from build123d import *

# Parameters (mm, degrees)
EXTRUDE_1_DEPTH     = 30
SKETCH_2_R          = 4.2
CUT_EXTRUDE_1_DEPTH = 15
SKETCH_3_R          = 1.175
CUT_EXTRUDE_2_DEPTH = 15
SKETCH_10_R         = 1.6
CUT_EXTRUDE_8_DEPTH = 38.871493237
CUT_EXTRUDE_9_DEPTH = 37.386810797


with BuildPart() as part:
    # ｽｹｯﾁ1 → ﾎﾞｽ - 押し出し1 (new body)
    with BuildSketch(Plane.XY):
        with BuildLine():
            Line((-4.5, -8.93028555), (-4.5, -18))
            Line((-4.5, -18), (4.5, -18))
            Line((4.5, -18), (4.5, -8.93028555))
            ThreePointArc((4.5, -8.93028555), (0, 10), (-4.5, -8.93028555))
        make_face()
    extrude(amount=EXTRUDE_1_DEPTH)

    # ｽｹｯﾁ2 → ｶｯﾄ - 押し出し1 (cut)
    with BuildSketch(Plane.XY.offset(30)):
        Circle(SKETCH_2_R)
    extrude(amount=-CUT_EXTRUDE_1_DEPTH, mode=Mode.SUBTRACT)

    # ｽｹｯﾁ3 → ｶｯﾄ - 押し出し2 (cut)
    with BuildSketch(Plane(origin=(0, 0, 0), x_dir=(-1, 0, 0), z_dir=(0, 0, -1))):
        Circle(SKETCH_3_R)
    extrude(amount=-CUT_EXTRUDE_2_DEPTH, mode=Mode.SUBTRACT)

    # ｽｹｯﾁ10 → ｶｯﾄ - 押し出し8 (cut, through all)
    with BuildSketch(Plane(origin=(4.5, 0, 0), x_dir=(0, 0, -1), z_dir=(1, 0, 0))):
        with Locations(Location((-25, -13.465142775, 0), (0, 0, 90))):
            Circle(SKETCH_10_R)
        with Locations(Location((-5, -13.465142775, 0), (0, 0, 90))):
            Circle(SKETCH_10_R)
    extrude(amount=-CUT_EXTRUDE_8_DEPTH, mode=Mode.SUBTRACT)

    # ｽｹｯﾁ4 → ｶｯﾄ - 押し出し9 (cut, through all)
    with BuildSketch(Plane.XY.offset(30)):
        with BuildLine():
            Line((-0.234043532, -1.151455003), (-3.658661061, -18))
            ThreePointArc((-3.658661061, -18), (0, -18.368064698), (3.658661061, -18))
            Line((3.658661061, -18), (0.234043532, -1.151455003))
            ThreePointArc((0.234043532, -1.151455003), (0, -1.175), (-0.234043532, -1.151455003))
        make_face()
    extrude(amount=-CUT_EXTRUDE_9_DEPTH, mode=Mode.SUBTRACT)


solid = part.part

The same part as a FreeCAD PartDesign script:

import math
import FreeCAD as App
import Part
import Sketcher
Q = App.Units.Quantity

doc = App.newDocument("Part")
body = doc.addObject("PartDesign::Body", "Body")

# Sketch on XY plane
sketch1 = body.newObject("Sketcher::SketchObject", "Sketch")
sketch1.AttachmentSupport = (doc.getObject("XY_Plane"), [""])
sketch1.MapMode = "FlatFace"
sketch1.addGeometry([
    Part.LineSegment(App.Vector(-4.5, -8.930286, 0), App.Vector(-4.5, -18, 0)),
    Part.LineSegment(App.Vector(-4.5, -18, 0), App.Vector(4.5, -18, 0)),
    Part.LineSegment(App.Vector(4.5, -18, 0), App.Vector(4.5, -8.930286, 0)),
    Part.ArcOfCircle(Part.Circle(App.Vector(0, 0, 0), App.Vector(0, 0, 1), 10), math.radians(-63.256316), math.radians(243.256316)),
], False)
sketch1.addConstraint([
    Sketcher.Constraint("Coincident", 0, 2, 1, 1),
    Sketcher.Constraint("Coincident", 1, 2, 2, 1),
    Sketcher.Constraint("Coincident", 2, 2, 3, 1),
    Sketcher.Constraint("Coincident", 3, 2, 0, 1),
    Sketcher.Constraint("Vertical", 0),
    Sketcher.Constraint("Horizontal", 1),
    Sketcher.Constraint("Vertical", 2),
    Sketcher.Constraint("Coincident", 3, 3, -1, 1),
    Sketcher.Constraint("Horizontal", 2, 2, 3, 2),
    Sketcher.Constraint("Radius", 3, Q("10 mm")),
    Sketcher.Constraint("DistanceX", 1, 1, 1, 2, Q("9 mm")),
    Sketcher.Constraint("DistanceY", 0, 2, -1, 1, Q("18 mm")),
])
pad1 = body.newObject("PartDesign::Pad", "Pad")
pad1.Profile = sketch1
pad1.Length = 30

# Sketch on XY plane
sketch2 = body.newObject("Sketcher::SketchObject", "Sketch001")
sketch2.AttachmentSupport = (doc.getObject("XY_Plane"), [""])
sketch2.MapMode = "FlatFace"
sketch2.AttachmentOffset = App.Placement(App.Vector(0, 0, 30), App.Rotation())
sketch2.addGeometry(Part.Circle(App.Vector(0, 0, 0), App.Vector(0, 0, 1), 4.2), False)
sketch2.addConstraint([
    Sketcher.Constraint("Coincident", 0, 3, -1, 1),
    Sketcher.Constraint("Diameter", 0, Q("8.4 mm")),
])
pocket1 = body.newObject("PartDesign::Pocket", "Pocket")
pocket1.Profile = sketch2
pocket1.Length = 15

# Sketch on XY plane
sketch3 = body.newObject("Sketcher::SketchObject", "Sketch002")
sketch3.AttachmentSupport = (doc.getObject("XY_Plane"), [""])
sketch3.MapMode = "FlatFace"
sketch3.addGeometry(Part.Circle(App.Vector(0, 0, 0), App.Vector(0, 0, 1), 1.175), False)
sketch3.addConstraint([
    Sketcher.Constraint("Coincident", 0, 3, -1, 1),
    Sketcher.Constraint("Diameter", 0, Q("2.35 mm")),
])
pocket2 = body.newObject("PartDesign::Pocket", "Pocket001")
pocket2.Profile = sketch3
pocket2.Length = 15
pocket2.Reversed = True

# Sketch on YZ plane
sketch4 = body.newObject("Sketcher::SketchObject", "Sketch003")
sketch4.AttachmentSupport = (doc.getObject("YZ_Plane"), [""])
sketch4.MapMode = "FlatFace"
sketch4.AttachmentOffset = App.Placement(App.Vector(0, 0, 4.5), App.Rotation())
sketch4.addGeometry([
    Part.Circle(App.Vector(-13.465143, 25, 0), App.Vector(0, 0, 1), 1.6),
    Part.Circle(App.Vector(-13.465143, 5, 0), App.Vector(0, 0, 1), 1.6),
], False)
sketch4.addConstraint([
    Sketcher.Constraint("Equal", 0, 1),
    Sketcher.Constraint("Vertical", 0, 3, 1, 3),
    Sketcher.Constraint("Diameter", 0, Q("3.2 mm")),
    Sketcher.Constraint("DistanceY", -1, 1, 0, 3, Q("25 mm")),
    Sketcher.Constraint("DistanceY", -1, 1, 1, 3, Q("5 mm")),
    Sketcher.Constraint("DistanceX", 0, 3, -1, 1, Q("13.465143 mm")),
])
pocket3 = body.newObject("PartDesign::Pocket", "Pocket002")
pocket3.Profile = sketch4
pocket3.Type = "ThroughAll"

# Sketch on XY plane
sketch5 = body.newObject("Sketcher::SketchObject", "Sketch004")
sketch5.AttachmentSupport = (doc.getObject("XY_Plane"), [""])
sketch5.MapMode = "FlatFace"
sketch5.AttachmentOffset = App.Placement(App.Vector(0, 0, 30), App.Rotation())
sketch5.addGeometry([
    Part.LineSegment(App.Vector(-0.234044, -1.151455, 0), App.Vector(-3.658661, -18, 0)),
    Part.ArcOfCircle(Part.Circle(App.Vector(0, 0, 0), App.Vector(0, 0, 1), 18.368065), math.radians(-101.489362), math.radians(-78.510638)),
    Part.LineSegment(App.Vector(3.658661, -18, 0), App.Vector(0.234044, -1.151455, 0)),
    Part.ArcOfCircle(Part.Circle(App.Vector(0, 0, 0), App.Vector(0, 0, 1), 1.175), math.radians(-101.489362), math.radians(-78.510638)),
], False)
sketch5.addConstraint([
    Sketcher.Constraint("Coincident", 0, 2, 1, 1),
    Sketcher.Constraint("Coincident", 1, 2, 2, 1),
    Sketcher.Constraint("Coincident", 2, 2, 3, 2),
    Sketcher.Constraint("Coincident", 3, 1, 0, 1),
    Sketcher.Constraint("Coincident", 1, 3, -1, 1),
    Sketcher.Constraint("Coincident", 3, 3, -1, 1),
    Sketcher.Constraint("Horizontal", 0, 2, 1, 2),
    Sketcher.Constraint("Horizontal", 2, 2, 3, 1),
    Sketcher.Constraint("DistanceY", 0, 2, -1, 1, Q("18 mm")),
    Sketcher.Constraint("Radius", 3, Q("1.175 mm")),
    Sketcher.Constraint("Radius", 1, Q("18.368065 mm")),
    Sketcher.Constraint("DistanceX", -1, 1, 2, 2, Q("0.234044 mm")),
])
pocket4 = body.newObject("PartDesign::Pocket", "Pocket003")
pocket4.Profile = sketch5
pocket4.Type = "ThroughAll"

doc.recompute()
